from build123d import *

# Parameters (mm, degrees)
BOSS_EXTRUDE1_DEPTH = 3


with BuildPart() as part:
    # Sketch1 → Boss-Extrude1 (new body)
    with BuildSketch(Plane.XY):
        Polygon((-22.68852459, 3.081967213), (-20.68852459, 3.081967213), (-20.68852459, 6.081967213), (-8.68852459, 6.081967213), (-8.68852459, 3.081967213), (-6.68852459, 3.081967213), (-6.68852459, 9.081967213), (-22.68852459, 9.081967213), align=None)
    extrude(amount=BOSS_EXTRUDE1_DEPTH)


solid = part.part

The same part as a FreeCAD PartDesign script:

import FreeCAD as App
import Part
import Sketcher

V = App.Vector
Q = App.Units.Quantity

doc = App.newDocument("Part")
body = doc.addObject("PartDesign::Body", "Body")

sketch1 = body.newObject("Sketcher::SketchObject", "Sketch")
sketch1.AttachmentSupport = (doc.getObject("XY_Plane"), [""])
sketch1.MapMode = "FlatFace"
sketch1.addGeometry([
    Part.LineSegment(V(-22.7, 3.1, 0), V(-20.7, 3.1, 0)),
    Part.LineSegment(V(-20.7, 3.1, 0), V(-20.7, 6.1, 0)),
    Part.LineSegment(V(-20.7, 6.1, 0), V(-8.7, 6.1, 0)),
    Part.LineSegment(V(-8.7, 6.1, 0), V(-8.7, 3.1, 0)),
    Part.LineSegment(V(-8.7, 3.1, 0), V(-6.7, 3.1, 0)),
    Part.LineSegment(V(-6.7, 3.1, 0), V(-6.7, 9.1, 0)),
    Part.LineSegment(V(-6.7, 9.1, 0), V(-22.7, 9.1, 0)),
    Part.LineSegment(V(-22.7, 9.1, 0), V(-22.7, 3.1, 0)),
], False)
sketch1.addConstraint([
    Sketcher.Constraint("Coincident", 0, 2, 1, 1),
    Sketcher.Constraint("Coincident", 1, 2, 2, 1),
    Sketcher.Constraint("Coincident", 2, 2, 3, 1),
    Sketcher.Constraint("Coincident", 3, 2, 4, 1),
    Sketcher.Constraint("Coincident", 4, 2, 5, 1),
    Sketcher.Constraint("Coincident", 5, 2, 6, 1),
    Sketcher.Constraint("Coincident", 6, 2, 7, 1),
    Sketcher.Constraint("Coincident", 7, 2, 0, 1),
    Sketcher.Constraint("Horizontal", 0),
    Sketcher.Constraint("Vertical", 1),
    Sketcher.Constraint("Horizontal", 2),
    Sketcher.Constraint("Vertical", 3),
    Sketcher.Constraint("Horizontal", 4),
    Sketcher.Constraint("Vertical", 5),
    Sketcher.Constraint("Horizontal", 6),
    Sketcher.Constraint("Vertical", 7),
    Sketcher.Constraint("Horizontal", 0, 2, 3, 2),
    Sketcher.Constraint("Equal", 0, 4),
    Sketcher.Constraint("DistanceX", 0, 1, 0, 2, Q("2 mm")),
    Sketcher.Constraint("DistanceX", 2, 1, 2, 2, Q("12 mm")),
    Sketcher.Constraint("DistanceY", 1, 1, 1, 2, Q("3 mm")),
    Sketcher.Constraint("DistanceY", 5, 1, 5, 2, Q("6 mm")),
    Sketcher.Constraint("DistanceX", 0, 2, -1, 1, Q("20.688525 mm")),
    Sketcher.Constraint("DistanceY", -1, 1, 0, 2, Q("3.081967 mm")),
])
pad1 = body.newObject("PartDesign::Pad", "Pad")
pad1.Profile = sketch1
pad1.Length = 3

doc.recompute()
